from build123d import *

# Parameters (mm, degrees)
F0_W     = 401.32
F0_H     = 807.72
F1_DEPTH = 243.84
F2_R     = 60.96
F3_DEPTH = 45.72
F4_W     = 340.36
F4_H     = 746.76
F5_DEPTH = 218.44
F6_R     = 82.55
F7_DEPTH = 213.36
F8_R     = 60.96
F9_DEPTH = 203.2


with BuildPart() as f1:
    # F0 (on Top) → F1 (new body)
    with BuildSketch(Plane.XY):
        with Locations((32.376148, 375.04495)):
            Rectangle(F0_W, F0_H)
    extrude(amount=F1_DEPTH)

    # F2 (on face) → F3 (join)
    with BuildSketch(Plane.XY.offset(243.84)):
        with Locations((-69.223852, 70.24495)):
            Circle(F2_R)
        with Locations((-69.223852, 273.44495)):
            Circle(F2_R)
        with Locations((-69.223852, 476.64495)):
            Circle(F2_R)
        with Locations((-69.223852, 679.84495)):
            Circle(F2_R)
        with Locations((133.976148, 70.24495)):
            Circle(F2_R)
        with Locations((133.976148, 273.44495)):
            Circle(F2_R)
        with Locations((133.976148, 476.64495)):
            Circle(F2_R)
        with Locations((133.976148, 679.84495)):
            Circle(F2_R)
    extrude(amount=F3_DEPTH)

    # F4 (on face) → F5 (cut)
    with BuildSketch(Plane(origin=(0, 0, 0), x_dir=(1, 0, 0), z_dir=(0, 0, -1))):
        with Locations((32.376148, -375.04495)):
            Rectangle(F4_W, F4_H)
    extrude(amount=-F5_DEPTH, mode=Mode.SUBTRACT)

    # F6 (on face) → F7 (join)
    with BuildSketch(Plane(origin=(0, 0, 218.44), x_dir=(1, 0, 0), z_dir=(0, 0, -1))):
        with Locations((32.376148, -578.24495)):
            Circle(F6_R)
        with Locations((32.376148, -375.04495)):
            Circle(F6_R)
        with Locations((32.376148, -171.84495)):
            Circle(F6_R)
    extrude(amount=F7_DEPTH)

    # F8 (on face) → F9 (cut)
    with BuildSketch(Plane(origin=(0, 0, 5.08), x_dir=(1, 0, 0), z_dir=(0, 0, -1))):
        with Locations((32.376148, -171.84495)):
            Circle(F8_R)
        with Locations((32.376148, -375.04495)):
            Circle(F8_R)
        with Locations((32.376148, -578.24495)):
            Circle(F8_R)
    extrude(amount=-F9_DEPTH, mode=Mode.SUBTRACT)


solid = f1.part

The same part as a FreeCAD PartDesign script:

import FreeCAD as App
import Part
import Sketcher

V = App.Vector
Q = App.Units.Quantity


def add_polygon(sketch, points):
    """Adds a closed chain of lines whose ends are joined by coincident constraints."""
    first, n = sketch.GeometryCount, len(points)
    for a, b in zip(points, points[1:] + points[:1]):
        sketch.addGeometry(Part.LineSegment(App.Vector(*a, 0), App.Vector(*b, 0)), False)
    for i in range(n):
        sketch.addConstraint(Sketcher.Constraint("Coincident", first + i, 2, first + (i + 1) % n, 1))

doc = App.newDocument("Part")
params = doc.addObject("Spreadsheet::Sheet", "Params")
for row, (alias, value) in enumerate([
    ("sketch1_width", "15.8 in"),
    ("sketch1_height", "31.8 in"),
    ("pad1_length", "9.6 in"),
    ("sketch2_diameter", "4.8 in"),
    ("pad2_length", "1.8 in"),
    ("sketch3_width", "13.4 in"),
    ("sketch3_height", "29.4 in"),
    ("pocket1_length", "8.6 in"),
    ("sketch4_diameter", "6.5 in"),
    ("pad3_length", "8.4 in"),
    ("sketch5_diameter", "4.8 in"),
    ("pocket2_length", "8 in"),
], start=1):
    params.set(f"A{row}", alias)
    params.set(f"B{row}", "=" + value)
    params.setAlias(f"B{row}", alias)

body = doc.addObject("PartDesign::Body", "Body")

# Sketch on XY plane
sketch1 = body.newObject("Sketcher::SketchObject", "Sketch")
sketch1.AttachmentSupport = (doc.getObject("XY_Plane"), [""])
sketch1.MapMode = "FlatFace"
add_polygon(sketch1, [(-168, 779), (-168, -29), (233, -29), (233, 779)])  # lines 0-3
sketch1.addConstraint([
    Sketcher.Constraint("Vertical", 0),
    Sketcher.Constraint("Horizontal", 1),
    Sketcher.Constraint("Vertical", 2),
    Sketcher.Constraint("Horizontal", 3),
    Sketcher.Constraint("DistanceX", 1, 1, 1, 2, Q("15.8 in")),
    Sketcher.Constraint("DistanceY", 0, 2, 0, 1, Q("31.8 in")),
    Sketcher.Constraint("DistanceX", 0, 2, -1, 1, 168.283852),
    Sketcher.Constraint("DistanceY", 0, 2, -1, 1, 28.81505),
])
sketch1.setExpression("Constraints[8]", "Params.sketch1_width")
sketch1.setExpression("Constraints[9]", "Params.sketch1_height")
pad1 = body.newObject("PartDesign::Pad", "Pad")
pad1.Profile = sketch1
pad1.setExpression("Length", "Params.pad1_length")

# Sketch on XY plane
sketch2 = body.newObject("Sketcher::SketchObject", "Sketch001")
sketch2.AttachmentSupport = (doc.getObject("XY_Plane"), [""])
sketch2.MapMode = "FlatFace"
sketch2.AttachmentOffset = App.Placement(V(0, 0, 9.6 * 25.4), App.Rotation())
sketch2.addGeometry([
    Part.Circle(V(-69, 70, 0), V(0, 0, 1), 61),  # 0
    Part.Circle(V(-69, 273, 0), V(0, 0, 1), 61),  # 1
    Part.Circle(V(-69, 477, 0), V(0, 0, 1), 61),  # 2
    Part.Circle(V(-69, 680, 0), V(0, 0, 1), 61),  # 3
    Part.Circle(V(134, 70, 0), V(0, 0, 1), 61),  # 4
    Part.Circle(V(134, 273, 0), V(0, 0, 1), 61),  # 5
    Part.Circle(V(134, 477, 0), V(0, 0, 1), 61),  # 6
    Part.Circle(V(134, 680, 0), V(0, 0, 1), 61),  # 7
], False)
sketch2.addConstraint([
    Sketcher.Constraint("Equal", 0, 1),
    Sketcher.Constraint("Equal", 1, 2),
    Sketcher.Constraint("Equal", 2, 3),
    Sketcher.Constraint("Equal", 3, 4),
    Sketcher.Constraint("Equal", 4, 5),
    Sketcher.Constraint("Equal", 5, 6),
    Sketcher.Constraint("Equal", 6, 7),
    Sketcher.Constraint("Horizontal", 0, 3, 4, 3),
    Sketcher.Constraint("Horizontal", 1, 3, 5, 3),
    Sketcher.Constraint("Horizontal", 2, 3, 6, 3),
    Sketcher.Constraint("Horizontal", 3, 3, 7, 3),
    Sketcher.Constraint("Vertical", 0, 3, 1, 3),
    Sketcher.Constraint("Vertical", 1, 3, 2, 3),
    Sketcher.Constraint("Vertical", 2, 3, 3, 3),
    Sketcher.Constraint("Vertical", 4, 3, 5, 3),
    Sketcher.Constraint("Vertical", 5, 3, 6, 3),
    Sketcher.Constraint("Vertical", 6, 3, 7, 3),
    Sketcher.Constraint("Diameter", 0, Q("4.8 in")),
    Sketcher.Constraint("DistanceY", 0, 3, 1, 3, Q("8 in")),
    Sketcher.Constraint("DistanceY", 1, 3, 2, 3, Q("8 in")),
    Sketcher.Constraint("DistanceY", 2, 3, 3, 3, Q("8 in")),
    Sketcher.Constraint("DistanceX", 0, 3, 4, 3, Q("8 in")),
    Sketcher.Constraint("DistanceX", 0, 3, -1, 1, 69.223852),
    Sketcher.Constraint("DistanceY", -1, 1, 0, 3, 70.24495),
])
sketch2.setExpression("Constraints[17]", "Params.sketch2_diameter")
pad2 = body.newObject("PartDesign::Pad", "Pad001")
pad2.Profile = sketch2
pad2.setExpression("Length", "Params.pad2_length")

# Sketch on XY plane
sketch3 = body.newObject("Sketcher::SketchObject", "Sketch002")
sketch3.AttachmentSupport = (doc.getObject("XY_Plane"), [""])
sketch3.MapMode = "FlatFace"
add_polygon(sketch3, [(-138, 2), (-138, 748), (203, 748), (203, 2)])  # lines 0-3
sketch3.addConstraint([
    Sketcher.Constraint("Vertical", 0),
    Sketcher.Constraint("Horizontal", 1),
    Sketcher.Constraint("Vertical", 2),
    Sketcher.Constraint("Horizontal", 3),
    Sketcher.Constraint("DistanceX", 1, 1, 1, 2, Q("13.4 in")),
    Sketcher.Constraint("DistanceY", 0, 1, 0, 2, Q("29.4 in")),
    Sketcher.Constraint("DistanceX", 0, 2, -1, 1, 137.803852),
    Sketcher.Constraint("DistanceY", -1, 1, 0, 2, 748.42495),
])
sketch3.setExpression("Constraints[8]", "Params.sketch3_width")
sketch3.setExpression("Constraints[9]", "Params.sketch3_height")
pocket1 = body.newObject("PartDesign::Pocket", "Pocket")
pocket1.Profile = sketch3
pocket1.setExpression("Length", "Params.pocket1_length")
pocket1.Reversed = True

# Sketch on XY plane
sketch4 = body.newObject("Sketcher::SketchObject", "Sketch003")
sketch4.AttachmentSupport = (doc.getObject("XY_Plane"), [""])
sketch4.MapMode = "FlatFace"
sketch4.AttachmentOffset = App.Placement(V(0, 0, 8.6 * 25.4), App.Rotation())
sketch4.addGeometry([
    Part.Circle(V(32, 578, 0), V(0, 0, 1), 83),
    Part.Circle(V(32, 375, 0), V(0, 0, 1), 83),
    Part.Circle(V(32, 172, 0), V(0, 0, 1), 83),
], False)
sketch4.addConstraint([
    Sketcher.Constraint("Equal", 0, 1),
    Sketcher.Constraint("Equal", 1, 2),
    Sketcher.Constraint("Vertical", 0, 3, 1, 3),
    Sketcher.Constraint("Vertical", 1, 3, 2, 3),
    Sketcher.Constraint("Diameter", 0, Q("6.5 in")),
    Sketcher.Constraint("DistanceY", 1, 3, 0, 3, Q("8 in")),
    Sketcher.Constraint("DistanceY", 2, 3, 1, 3, Q("8 in")),
    Sketcher.Constraint("DistanceY", -1, 1, 0, 3, 578.24495),
    Sketcher.Constraint("DistanceX", -1, 1, 0, 3, 32.376148),
])
sketch4.setExpression("Constraints[4]", "Params.sketch4_diameter")
pad3 = body.newObject("PartDesign::Pad", "Pad002")
pad3.Profile = sketch4
pad3.setExpression("Length", "Params.pad3_length")
pad3.Reversed = True

# Sketch on XY plane
sketch5 = body.newObject("Sketcher::SketchObject", "Sketch004")
sketch5.AttachmentSupport = (doc.getObject("XY_Plane"), [""])
sketch5.MapMode = "FlatFace"
sketch5.AttachmentOffset = App.Placement(V(0, 0, 0.2 * 25.4), App.Rotation())
sketch5.addGeometry([
    Part.Circle(V(32, 172, 0), V(0, 0, 1), 61),
    Part.Circle(V(32, 375, 0), V(0, 0, 1), 61),
    Part.Circle(V(32, 578, 0), V(0, 0, 1), 61),
], False)
sketch5.addConstraint([
    Sketcher.Constraint("Equal", 0, 1),
    Sketcher.Constraint("Equal", 1, 2),
    Sketcher.Constraint("Vertical", 0, 3, 1, 3),
    Sketcher.Constraint("Vertical", 1, 3, 2, 3),
    Sketcher.Constraint("Diameter", 0, Q("4.8 in")),
    Sketcher.Constraint("DistanceY", 0, 3, 1, 3, Q("8 in")),
    Sketcher.Constraint("DistanceY", 1, 3, 2, 3, Q("8 in")),
    Sketcher.Constraint("DistanceY", -1, 1, 0, 3, 171.84495),
    Sketcher.Constraint("DistanceX", -1, 1, 0, 3, 32.376148),
])
sketch5.setExpression("Constraints[4]", "Params.sketch5_diameter")
pocket2 = body.newObject("PartDesign::Pocket", "Pocket001")
pocket2.Profile = sketch5
pocket2.setExpression("Length", "Params.pocket2_length")
pocket2.Reversed = True

doc.recompute()
